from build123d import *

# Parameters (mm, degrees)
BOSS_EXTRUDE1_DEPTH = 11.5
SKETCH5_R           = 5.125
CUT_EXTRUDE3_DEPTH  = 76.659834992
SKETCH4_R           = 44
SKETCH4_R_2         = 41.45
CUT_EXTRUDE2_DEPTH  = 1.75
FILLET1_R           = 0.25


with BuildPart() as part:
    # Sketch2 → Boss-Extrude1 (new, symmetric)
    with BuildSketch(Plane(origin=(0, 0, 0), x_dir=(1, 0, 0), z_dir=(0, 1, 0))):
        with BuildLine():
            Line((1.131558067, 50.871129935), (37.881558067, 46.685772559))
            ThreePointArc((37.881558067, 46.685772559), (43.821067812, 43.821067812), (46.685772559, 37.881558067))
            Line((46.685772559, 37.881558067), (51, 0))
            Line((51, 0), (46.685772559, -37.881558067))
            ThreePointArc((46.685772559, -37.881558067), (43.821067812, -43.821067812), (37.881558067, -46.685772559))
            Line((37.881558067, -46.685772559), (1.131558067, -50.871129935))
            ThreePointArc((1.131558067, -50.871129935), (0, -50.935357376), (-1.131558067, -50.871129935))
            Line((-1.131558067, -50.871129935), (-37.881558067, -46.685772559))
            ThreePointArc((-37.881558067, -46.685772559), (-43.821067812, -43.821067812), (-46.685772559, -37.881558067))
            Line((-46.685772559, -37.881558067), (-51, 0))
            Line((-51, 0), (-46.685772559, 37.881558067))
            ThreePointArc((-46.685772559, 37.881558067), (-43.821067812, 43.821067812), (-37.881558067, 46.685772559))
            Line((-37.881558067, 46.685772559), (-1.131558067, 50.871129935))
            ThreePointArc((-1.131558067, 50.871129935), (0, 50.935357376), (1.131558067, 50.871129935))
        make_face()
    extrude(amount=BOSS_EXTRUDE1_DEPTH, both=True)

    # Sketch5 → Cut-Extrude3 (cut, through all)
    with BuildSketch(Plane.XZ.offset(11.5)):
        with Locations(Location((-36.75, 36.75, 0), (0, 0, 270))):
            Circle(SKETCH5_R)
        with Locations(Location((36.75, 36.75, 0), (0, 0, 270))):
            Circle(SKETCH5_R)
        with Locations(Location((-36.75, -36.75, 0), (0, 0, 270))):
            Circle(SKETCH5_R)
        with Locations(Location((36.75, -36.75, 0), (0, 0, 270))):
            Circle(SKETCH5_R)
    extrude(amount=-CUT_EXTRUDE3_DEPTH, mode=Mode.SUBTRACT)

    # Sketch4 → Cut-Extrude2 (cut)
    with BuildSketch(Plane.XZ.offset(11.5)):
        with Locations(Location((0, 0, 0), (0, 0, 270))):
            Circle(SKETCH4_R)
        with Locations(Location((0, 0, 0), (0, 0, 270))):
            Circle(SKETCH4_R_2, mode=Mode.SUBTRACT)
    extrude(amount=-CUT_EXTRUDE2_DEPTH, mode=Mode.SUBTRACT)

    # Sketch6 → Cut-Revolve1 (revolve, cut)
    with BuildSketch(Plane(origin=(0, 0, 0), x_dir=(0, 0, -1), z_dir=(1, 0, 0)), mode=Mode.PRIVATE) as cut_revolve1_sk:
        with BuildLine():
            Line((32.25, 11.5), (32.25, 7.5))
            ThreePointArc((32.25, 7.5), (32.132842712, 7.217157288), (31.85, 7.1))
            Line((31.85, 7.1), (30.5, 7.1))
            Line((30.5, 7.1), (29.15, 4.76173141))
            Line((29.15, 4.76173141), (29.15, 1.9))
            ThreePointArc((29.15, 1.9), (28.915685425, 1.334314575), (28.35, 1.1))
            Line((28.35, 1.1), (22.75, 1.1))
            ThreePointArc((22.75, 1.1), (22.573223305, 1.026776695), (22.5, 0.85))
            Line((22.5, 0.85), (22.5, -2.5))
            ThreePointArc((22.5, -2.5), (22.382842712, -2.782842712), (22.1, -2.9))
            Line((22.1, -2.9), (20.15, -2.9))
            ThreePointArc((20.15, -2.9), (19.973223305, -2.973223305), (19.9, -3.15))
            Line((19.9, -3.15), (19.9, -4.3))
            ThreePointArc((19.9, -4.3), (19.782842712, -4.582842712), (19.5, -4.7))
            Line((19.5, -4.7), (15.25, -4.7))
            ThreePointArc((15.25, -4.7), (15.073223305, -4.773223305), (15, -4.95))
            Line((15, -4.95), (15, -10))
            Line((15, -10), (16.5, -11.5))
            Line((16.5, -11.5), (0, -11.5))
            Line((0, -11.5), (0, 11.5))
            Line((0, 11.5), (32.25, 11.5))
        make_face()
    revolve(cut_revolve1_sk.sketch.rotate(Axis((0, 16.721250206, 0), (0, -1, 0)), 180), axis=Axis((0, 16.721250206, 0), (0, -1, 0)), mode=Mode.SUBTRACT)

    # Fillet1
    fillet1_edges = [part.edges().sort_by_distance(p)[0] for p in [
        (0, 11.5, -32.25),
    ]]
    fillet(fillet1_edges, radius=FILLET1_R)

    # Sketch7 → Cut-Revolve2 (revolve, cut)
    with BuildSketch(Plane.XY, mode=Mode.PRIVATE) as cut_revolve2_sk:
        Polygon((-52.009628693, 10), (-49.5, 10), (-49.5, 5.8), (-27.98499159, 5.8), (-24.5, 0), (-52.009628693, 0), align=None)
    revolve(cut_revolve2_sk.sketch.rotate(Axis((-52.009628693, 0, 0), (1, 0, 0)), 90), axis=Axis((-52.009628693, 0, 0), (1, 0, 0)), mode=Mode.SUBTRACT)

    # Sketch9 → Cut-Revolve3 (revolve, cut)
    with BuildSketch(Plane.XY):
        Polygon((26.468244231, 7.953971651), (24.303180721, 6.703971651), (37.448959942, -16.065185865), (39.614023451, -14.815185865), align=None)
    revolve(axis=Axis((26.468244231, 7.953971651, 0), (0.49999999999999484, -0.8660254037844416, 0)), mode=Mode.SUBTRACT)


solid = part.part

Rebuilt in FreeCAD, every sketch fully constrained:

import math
import FreeCAD as App
import Part
import Sketcher
from FreeCAD import Vector
Q = App.Units.Quantity


def edges_at(feature, points):
    """Names of the edges that pass closest to the given points."""
    edges = feature.Shape.Edges
    near = lambda p: min(range(len(edges)), key=lambda i: edges[i].distToShape(Part.Vertex(*p))[0])
    return sorted({f"Edge{near(p) + 1}" for p in points})


def add_polygon(sketch, points):
    """Adds a closed chain of lines whose ends are joined by coincident constraints."""
    first, n = sketch.GeometryCount, len(points)
    for a, b in zip(points, points[1:] + points[:1]):
        sketch.addGeometry(Part.LineSegment(App.Vector(*a, 0), App.Vector(*b, 0)), False)
    for i in range(n):
        sketch.addConstraint(Sketcher.Constraint("Coincident", first + i, 2, first + (i + 1) % n, 1))

doc = App.newDocument("Part")
body = doc.addObject("PartDesign::Body", "Body")

sketch1 = doc.addObject("Sketcher::SketchObject", "Sketch")
body.addObject(sketch1)
sketch1.AttachmentSupport = (doc.XZ_Plane, [""])
sketch1.MapMode = "FlatFace"
sketch1.addGeometry([
    Part.LineSegment(Vector(37.9, -46.7, 0), Vector(1.1, -50.9, 0)),
    Part.ArcOfCircle(Part.Circle(Vector(0, -40.9, 0), Vector(0, 0, 1), 10), math.radians(-96.5), math.radians(-83.5)),
    Part.LineSegment(Vector(-1.1, -50.9, 0), Vector(-37.9, -46.7, 0)),
    Part.ArcOfCircle(Part.Circle(Vector(-36.8, -36.8, 0), Vector(0, 0, 1), 10), math.radians(-174), math.radians(-96)),
    Part.LineSegment(Vector(-46.7, -37.9, 0), Vector(-51, 0, 0)),
    Part.LineSegment(Vector(-51, 0, 0), Vector(-46.7, 37.9, 0)),
    Part.ArcOfCircle(Part.Circle(Vector(-36.8, 36.8, 0), Vector(0, 0, 1), 10), math.radians(96), math.radians(174)),
    Part.LineSegment(Vector(-37.9, 46.7, 0), Vector(-1.1, 50.9, 0)),
    Part.ArcOfCircle(Part.Circle(Vector(0, 40.9, 0), Vector(0, 0, 1), 10), math.radians(83.5), math.radians(96.5)),
    Part.LineSegment(Vector(1.1, 50.9, 0), Vector(37.9, 46.7, 0)),
    Part.ArcOfCircle(Part.Circle(Vector(36.8, 36.8, 0), Vector(0, 0, 1), 10), math.radians(6), math.radians(84)),
    Part.LineSegment(Vector(46.7, 37.9, 0), Vector(51, 0, 0)),
    Part.LineSegment(Vector(51, 0, 0), Vector(46.7, -37.9, 0)),
    Part.ArcOfCircle(Part.Circle(Vector(36.8, -36.8, 0), Vector(0, 0, 1), 10), math.radians(-84), math.radians(-6)),
], False)
sketch1.addConstraint([
    Sketcher.Constraint("Tangent", 0, 2, 1, 2),
    Sketcher.Constraint("Tangent", 1, 1, 2, 1),
    Sketcher.Constraint("Tangent", 2, 2, 3, 2),
    Sketcher.Constraint("Tangent", 3, 1, 4, 1),
    Sketcher.Constraint("Coincident", 4, 2, 5, 1),
    Sketcher.Constraint("Tangent", 5, 2, 6, 2),
    Sketcher.Constraint("Tangent", 6, 1, 7, 1),
    Sketcher.Constraint("Tangent", 7, 2, 8, 2),
    Sketcher.Constraint("Tangent", 8, 1, 9, 1),
    Sketcher.Constraint("Tangent", 9, 2, 10, 2),
    Sketcher.Constraint("Tangent", 10, 1, 11, 1),
    Sketcher.Constraint("Coincident", 11, 2, 12, 1),
    Sketcher.Constraint("Tangent", 12, 2, 13, 2),
    Sketcher.Constraint("Tangent", 13, 1, 0, 1),
    Sketcher.Constraint("Equal", 1, 3),
    Sketcher.Constraint("Equal", 3, 6),
    Sketcher.Constraint("Equal", 6, 8),
    Sketcher.Constraint("Equal", 8, 10),
    Sketcher.Constraint("Equal", 10, 13),
    Sketcher.Constraint("Symmetric", 1, 3, 8, 3, -1, 1),
    Sketcher.Constraint("Symmetric", 3, 3, 10, 3, -1, 1),
    Sketcher.Constraint("Symmetric", 6, 3, 13, 3, -1, 1),
    Sketcher.Constraint("Symmetric", 4, 2, 11, 2, -1, 1),
    Sketcher.Constraint("Symmetric", 6, 3, 10, 3, -2),
    Sketcher.Constraint("PointOnObject", 1, 3, -2),
    Sketcher.Constraint("PointOnObject", 4, 2, -1),
    Sketcher.Constraint("Perpendicular", 0, 4),
    Sketcher.Constraint("Radius", 1, 10.0),
    Sketcher.Constraint("DistanceX", 4, 2, -1, 1, 51.0),
    Sketcher.Constraint("DistanceY", 3, 3, 6, 3, 73.5),
    Sketcher.Constraint("DistanceX", 6, 3, 10, 3, 73.5),
])
pad1 = doc.addObject("PartDesign::Pad", "Pad")
body.addObject(pad1)
pad1.Profile = sketch1
pad1.Length = 23
pad1.Midplane = True

sketch2 = doc.addObject("Sketcher::SketchObject", "Sketch001")
body.addObject(sketch2)
sketch2.AttachmentSupport = (doc.XZ_Plane, [""])
sketch2.MapMode = "FlatFace"
sketch2.AttachmentOffset = App.Placement(Vector(0, 0, 11.5), App.Rotation())
sketch2.addGeometry([
    Part.Circle(Vector(-37, 37, 0), Vector(0, 0, 1), 5),
    Part.Circle(Vector(37, 37, 0), Vector(0, 0, 1), 5),
    Part.Circle(Vector(-37, -37, 0), Vector(0, 0, 1), 5),
    Part.Circle(Vector(37, -37, 0), Vector(0, 0, 1), 5),
], False)
sketch2.addConstraint([
    Sketcher.Constraint("Equal", 0, 1),
    Sketcher.Constraint("Equal", 1, 2),
    Sketcher.Constraint("Equal", 2, 3),
    Sketcher.Constraint("Symmetric", 1, 3, 2, 3, -1, 1),
    Sketcher.Constraint("Symmetric", 0, 3, 3, 3, -1, 1),
    Sketcher.Constraint("Symmetric", 0, 3, 1, 3, -2),
    Sketcher.Constraint("Diameter", 0, 10.25),
    Sketcher.Constraint("DistanceX", 0, 3, 1, 3, 73.5),
    Sketcher.Constraint("DistanceY", 2, 3, 0, 3, 73.5),
])
pocket1 = doc.addObject("PartDesign::Pocket", "Pocket")
body.addObject(pocket1)
pocket1.Profile = sketch2
pocket1.Type = "ThroughAll"

sketch3 = doc.addObject("Sketcher::SketchObject", "Sketch002")
body.addObject(sketch3)
sketch3.AttachmentSupport = (doc.XZ_Plane, [""])
sketch3.MapMode = "FlatFace"
sketch3.AttachmentOffset = App.Placement(Vector(0, 0, 11.5), App.Rotation())
sketch3.addGeometry([
    Part.Circle(Vector(0, 0, 0), Vector(0, 0, 1), 44),
    Part.Circle(Vector(0, 0, 0), Vector(0, 0, 1), 41),
], False)
sketch3.addConstraint([
    Sketcher.Constraint("Coincident", 0, 3, -1, 1),
    Sketcher.Constraint("Coincident", 1, 3, -1, 1),
    Sketcher.Constraint("Diameter", 0, 88.0),
    Sketcher.Constraint("Diameter", 1, 82.9),
])
pocket2 = doc.addObject("PartDesign::Pocket", "Pocket001")
body.addObject(pocket2)
pocket2.Profile = sketch3
pocket2.Length = 1.75

sketch4 = doc.addObject("Sketcher::SketchObject", "Sketch003")
body.addObject(sketch4)
sketch4.AttachmentSupport = (doc.YZ_Plane, [""])
sketch4.MapMode = "FlatFace"
sketch4.addGeometry([
    Part.LineSegment(Vector(7.5, -32.25, 0), Vector(11.5, -32.25, 0)),
    Part.LineSegment(Vector(11.5, -32.25, 0), Vector(11.5, 0, 0)),
    Part.LineSegment(Vector(11.5, 0, 0), Vector(-11.5, 0, 0)),
    Part.LineSegment(Vector(-11.5, 0, 0), Vector(-11.5, -16.5, 0)),
    Part.LineSegment(Vector(-11.5, -16.5, 0), Vector(-10, -15, 0)),
    Part.LineSegment(Vector(-10, -15, 0), Vector(-4.95, -15, 0)),
    Part.ArcOfCircle(Part.Circle(Vector(-4.95, -15.25, 0), Vector(0, 0, 1), 0.25), math.radians(0), math.radians(90)),
    Part.LineSegment(Vector(-4.7, -15.25, 0), Vector(-4.7, -19.5, 0)),
    Part.ArcOfCircle(Part.Circle(Vector(-4.3, -19.5, 0), Vector(0, 0, 1), 0.4), math.radians(-180), math.radians(-90)),
    Part.LineSegment(Vector(-4.3, -19.9, 0), Vector(-3.15, -19.9, 0)),
    Part.ArcOfCircle(Part.Circle(Vector(-3.15, -20.15, 0), Vector(0, 0, 1), 0.25), math.radians(0), math.radians(90)),
    Part.LineSegment(Vector(-2.9, -20.15, 0), Vector(-2.9, -22.1, 0)),
    Part.ArcOfCircle(Part.Circle(Vector(-2.5, -22.1, 0), Vector(0, 0, 1), 0.4), math.radians(-180), math.radians(-90)),
    Part.LineSegment(Vector(-2.5, -22.5, 0), Vector(0.85, -22.5, 0)),
    Part.ArcOfCircle(Part.Circle(Vector(0.85, -22.75, 0), Vector(0, 0, 1), 0.25), math.radians(0), math.radians(90)),
    Part.LineSegment(Vector(1.1, -22.75, 0), Vector(1.1, -28.35, 0)),
    Part.ArcOfCircle(Part.Circle(Vector(1.9, -28.35, 0), Vector(0, 0, 1), 0.8), math.radians(180), math.radians(270)),
    Part.LineSegment(Vector(1.9, -29.15, 0), Vector(4.76, -29.15, 0)),
    Part.LineSegment(Vector(4.76, -29.15, 0), Vector(7.1, -30.5, 0)),
    Part.LineSegment(Vector(7.1, -30.5, 0), Vector(7.1, -31.85, 0)),
    Part.ArcOfCircle(Part.Circle(Vector(7.5, -31.85, 0), Vector(0, 0, 1), 0.4), math.radians(-180), math.radians(-90)),
], False)
sketch4.addConstraint([
    Sketcher.Constraint("Coincident", 0, 2, 1, 1),
    Sketcher.Constraint("Coincident", 1, 2, 2, 1),
    Sketcher.Constraint("Coincident", 2, 2, 3, 1),
    Sketcher.Constraint("Coincident", 3, 2, 4, 1),
    Sketcher.Constraint("Coincident", 4, 2, 5, 1),
    Sketcher.Constraint("Tangent", 5, 2, 6, 2),
    Sketcher.Constraint("Tangent", 6, 1, 7, 1),
    Sketcher.Constraint("Tangent", 7, 2, 8, 1),
    Sketcher.Constraint("Tangent", 8, 2, 9, 1),
    Sketcher.Constraint("Tangent", 9, 2, 10, 2),
    Sketcher.Constraint("Tangent", 10, 1, 11, 1),
    Sketcher.Constraint("Tangent", 11, 2, 12, 1),
    Sketcher.Constraint("Tangent", 12, 2, 13, 1),
    Sketcher.Constraint("Tangent", 13, 2, 14, 2),
    Sketcher.Constraint("Tangent", 14, 1, 15, 1),
    Sketcher.Constraint("Tangent", 15, 2, 16, 1),
    Sketcher.Constraint("Tangent", 16, 2, 17, 1),
    Sketcher.Constraint("Coincident", 17, 2, 18, 1),
    Sketcher.Constraint("Coincident", 18, 2, 19, 1),
    Sketcher.Constraint("Tangent", 19, 2, 20, 1),
    Sketcher.Constraint("Tangent", 20, 2, 0, 1),
    Sketcher.Constraint("Horizontal", 0),
    Sketcher.Constraint("Vertical", 1),
    Sketcher.Constraint("Horizontal", 2),
    Sketcher.Constraint("Vertical", 3),
    Sketcher.Constraint("Horizontal", 5),
    Sketcher.Constraint("Vertical", 7),
    Sketcher.Constraint("Horizontal", 9),
    Sketcher.Constraint("Vertical", 11),
    Sketcher.Constraint("Horizontal", 13),
    Sketcher.Constraint("Vertical", 15),
    Sketcher.Constraint("Horizontal", 17),
    Sketcher.Constraint("Vertical", 19),
    Sketcher.Constraint("Equal", 6, 10),
    Sketcher.Constraint("Equal", 8, 12),
    Sketcher.Constraint("Equal", 10, 14),
    Sketcher.Constraint("Equal", 12, 20),
    Sketcher.Constraint("Symmetric", 1, 2, 2, 2, -1, 1),
    Sketcher.Constraint("Radius", 8, 0.4),
    Sketcher.Constraint("Radius", 16, 0.8),
    Sketcher.Constraint("DistanceX", 0, 1, 0, 2, 4.0),
    Sketcher.Constraint("DistanceX", 2, 2, 2, 1, 23.0),
    Sketcher.Constraint("Angle", 4, Q("45 deg")),
    Sketcher.Constraint("Angle", 18, Q("-30 deg")),
    Sketcher.Constraint("Radius", 6, 0.25),
    Sketcher.Constraint("DistanceY", 3, 2, 3, 1, 16.5),
    Sketcher.Constraint("DistanceY", 15, 2, 15, 1, 5.6),
    Sketcher.Constraint("DistanceX", 4, 2, -1, 1, 10.0),
    Sketcher.Constraint("DistanceX", 10, 3, 14, 3, 4.0),
    Sketcher.Constraint("DistanceX", 12, 3, 20, 3, 10.0),
    Sketcher.Constraint("DistanceY", 8, 3, 3, 2, 3.0),
    Sketcher.Constraint("Distance", 18, 2.7),
    Sketcher.Constraint("DistanceX", 5, 1, 5, 2, 5.05),
    Sketcher.Constraint("DistanceY", 1, 1, 1, 2, 32.25),
    Sketcher.Constraint("DistanceY", 11, 2, 11, 1, 1.95),
])
groove = doc.addObject("PartDesign::Groove", "Groove")
body.addObject(groove)
groove.Profile = sketch4
groove.ReferenceAxis = (sketch4, ["H_Axis"])
groove.Angle = 360
doc.recompute()

fillet = doc.addObject("PartDesign::Fillet", "Fillet")
body.addObject(fillet)
fillet.Base = (groove, edges_at(groove, [(0, 11.5, -32.25)]))
fillet.Radius = 0.25

sketch5 = doc.addObject("Sketcher::SketchObject", "Sketch004")
body.addObject(sketch5)
sketch5.AttachmentSupport = (doc.XY_Plane, [""])
sketch5.MapMode = "FlatFace"
add_polygon(sketch5, [(-49.5, 10), (-52, 10), (-52, 0), (-24.5, 0), (-28, 5.8), (-49.5, 5.8)])
sketch5.addConstraint([
    Sketcher.Constraint("Horizontal", 0),
    Sketcher.Constraint("Vertical", 1),
    Sketcher.Constraint("Horizontal", 2),
    Sketcher.Constraint("Horizontal", 4),
    Sketcher.Constraint("Vertical", 5),
    Sketcher.Constraint("PointOnObject", 1, 2, -1),
    Sketcher.Constraint("DistanceY", 1, 2, 1, 1, 10.0),
    Sketcher.Constraint("Angle", 3, Q("121 deg")),
    Sketcher.Constraint("DistanceY", 5, 1, 5, 2, 4.2),
    Sketcher.Constraint("DistanceX", 4, 2, 2, 2, 25.0),
    Sketcher.Constraint("DistanceX", 2, 2, -1, 1, 24.5),
    Sketcher.Constraint("DistanceX", 0, 2, 0, 1, 2.509629),
])
groove2 = doc.addObject("PartDesign::Groove", "Groove001")
body.addObject(groove2)
groove2.Profile = sketch5
groove2.ReferenceAxis = (sketch5, ["H_Axis"])
groove2.Angle = 360

sketch6 = doc.addObject("Sketcher::SketchObject", "Sketch005")
body.addObject(sketch6)
sketch6.AttachmentSupport = (doc.XY_Plane, [""])
sketch6.MapMode = "FlatFace"
add_polygon(sketch6, [(26.5, 8), (24.3, 6.7), (37.4, -16.1), (39.6, -14.8)])
sketch6.addGeometry(Part.LineSegment(Vector(26.5, 8, 0), Vector(39.6, -14.8, 0)), True)
sketch6.addConstraint([
    Sketcher.Constraint("Coincident", 4, 1, 3, 2),
    Sketcher.Constraint("Coincident", 4, 2, 2, 2),
    Sketcher.Constraint("Perpendicular", 0, 1),
    Sketcher.Constraint("Perpendicular", 1, 2),
    Sketcher.Constraint("Perpendicular", 2, 3),
    Sketcher.Constraint("Angle", 0, Q("-150 deg")),
    Sketcher.Constraint("Distance", 0, 2.5),
    Sketcher.Constraint("Distance", 1, 26.291558),
    Sketcher.Constraint("DistanceX", -1, 1, 0, 2, 24.303181),
    Sketcher.Constraint("DistanceY", -1, 1, 0, 2, 6.703972),
])
groove3 = doc.addObject("PartDesign::Groove", "Groove002")
body.addObject(groove3)
groove3.Profile = sketch6
groove3.ReferenceAxis = (sketch6, ["Axis0"])
groove3.Angle = 360

doc.recompute()
